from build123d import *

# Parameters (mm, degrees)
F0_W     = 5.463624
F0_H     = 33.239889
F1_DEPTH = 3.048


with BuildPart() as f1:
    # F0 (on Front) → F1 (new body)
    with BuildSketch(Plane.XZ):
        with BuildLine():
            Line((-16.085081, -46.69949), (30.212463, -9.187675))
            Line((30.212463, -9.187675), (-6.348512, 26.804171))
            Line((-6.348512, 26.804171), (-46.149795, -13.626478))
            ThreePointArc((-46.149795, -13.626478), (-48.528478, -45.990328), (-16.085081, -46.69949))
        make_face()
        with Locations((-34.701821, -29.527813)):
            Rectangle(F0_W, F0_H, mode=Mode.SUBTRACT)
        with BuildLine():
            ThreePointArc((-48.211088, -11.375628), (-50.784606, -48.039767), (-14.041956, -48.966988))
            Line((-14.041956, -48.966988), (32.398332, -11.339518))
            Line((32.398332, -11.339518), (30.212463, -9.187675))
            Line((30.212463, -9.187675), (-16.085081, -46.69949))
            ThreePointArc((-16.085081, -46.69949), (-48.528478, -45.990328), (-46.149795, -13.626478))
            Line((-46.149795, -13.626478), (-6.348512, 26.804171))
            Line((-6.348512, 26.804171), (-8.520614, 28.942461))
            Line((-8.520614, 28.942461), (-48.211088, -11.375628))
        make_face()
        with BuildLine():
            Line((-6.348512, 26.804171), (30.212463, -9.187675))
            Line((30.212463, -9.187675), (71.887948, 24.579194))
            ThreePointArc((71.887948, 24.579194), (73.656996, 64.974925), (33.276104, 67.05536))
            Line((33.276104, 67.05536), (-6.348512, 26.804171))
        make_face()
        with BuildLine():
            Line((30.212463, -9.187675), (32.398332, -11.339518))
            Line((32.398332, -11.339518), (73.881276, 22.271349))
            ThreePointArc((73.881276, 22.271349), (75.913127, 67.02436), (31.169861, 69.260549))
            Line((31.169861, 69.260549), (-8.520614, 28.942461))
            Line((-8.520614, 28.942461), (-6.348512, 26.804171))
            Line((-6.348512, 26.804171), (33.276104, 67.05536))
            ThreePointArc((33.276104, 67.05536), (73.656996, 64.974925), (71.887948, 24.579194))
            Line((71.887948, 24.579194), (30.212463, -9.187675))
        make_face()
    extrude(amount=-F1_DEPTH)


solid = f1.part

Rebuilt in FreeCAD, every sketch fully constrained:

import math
import FreeCAD as App
import Part
import Sketcher
Q = App.Units.Quantity


def add_polygon(sketch, points):
    """Adds a closed chain of lines whose ends are joined by coincident constraints."""
    first, n = sketch.GeometryCount, len(points)
    for a, b in zip(points, points[1:] + points[:1]):
        sketch.addGeometry(Part.LineSegment(App.Vector(*a, 0), App.Vector(*b, 0)), False)
    for i in range(n):
        sketch.addConstraint(Sketcher.Constraint("Coincident", first + i, 2, first + (i + 1) % n, 1))

doc = App.newDocument("Part")
body = doc.addObject("PartDesign::Body", "Body")

# Sketch on XZ plane
sketch1 = body.newObject("Sketcher::SketchObject", "Sketch")
sketch1.AttachmentSupport = (doc.getObject("XZ_Plane"), [""])
sketch1.MapMode = "FlatFace"
sketch1.addGeometry(Part.LineSegment(App.Vector(-9, 29, 0), App.Vector(-48, -11, 0)), False)  # 0
sketch1.addGeometry(Part.ArcOfCircle(Part.Circle(App.Vector(-32, -31, 0), App.Vector(0, 0, 1), 25), math.radians(130), math.radians(315)), False)  # 1
sketch1.addGeometry(Part.LineSegment(App.Vector(-14, -49, 0), App.Vector(32, -11, 0)), False)  # 2
sketch1.addGeometry(Part.LineSegment(App.Vector(32, -11, 0), App.Vector(74, 22, 0)), False)  # 3
sketch1.addGeometry(Part.ArcOfCircle(Part.Circle(App.Vector(52, 46, 0), App.Vector(0, 0, 1), 32), math.radians(-47), math.radians(132)), False)  # 4
sketch1.addGeometry(Part.LineSegment(App.Vector(31, 69, 0), App.Vector(-9, 29, 0)), False)  # 5
add_polygon(sketch1, [(-32, -46), (-37, -46), (-37, -13), (-32, -13)])  # lines 6-9
sketch1.addConstraint([
    Sketcher.Constraint("Coincident", 0, 2, 1, 1),
    Sketcher.Constraint("Coincident", 1, 2, 2, 1),
    Sketcher.Constraint("Coincident", 2, 2, 3, 1),
    Sketcher.Constraint("Coincident", 3, 2, 4, 1),
    Sketcher.Constraint("Coincident", 4, 2, 5, 1),
    Sketcher.Constraint("Coincident", 5, 2, 0, 1),
    Sketcher.Constraint("Horizontal", 6),
    Sketcher.Constraint("Vertical", 7),
    Sketcher.Constraint("Horizontal", 8),
    Sketcher.Constraint("Vertical", 9),
    Sketcher.Constraint("Parallel", 2, 3),
    Sketcher.Constraint("Parallel", 0, 5),
    Sketcher.Constraint("Vertical", 1, 3, 8, 2),
    Sketcher.Constraint("Equal", 0, 5),
    Sketcher.Constraint("Radius", 4, Q("31.750331 mm")),
    Sketcher.Constraint("Radius", 1, Q("25.425563 mm")),
    Sketcher.Constraint("DistanceY", 7, 1, 7, 2, Q("33.239889 mm")),
    Sketcher.Constraint("DistanceY", 3, 2, 4, 2, Q("46.9892 mm")),
    Sketcher.Constraint("Distance", 0, Q("56.576338 mm")),
    Sketcher.Constraint("Distance", 2, Q("59.770619 mm")),
    Sketcher.Constraint("Distance", 3, Q("53.390308 mm")),
    Sketcher.Constraint("DistanceX", 6, 2, 6, 1, Q("5.463624 mm")),
    Sketcher.Constraint("DistanceX", 1, 3, -1, 1, Q("31.970009 mm")),
    Sketcher.Constraint("DistanceY", -1, 1, 4, 3, Q("45.66843 mm")),
    Sketcher.Constraint("DistanceY", 0, 2, -1, 1, Q("11.375628 mm")),
    Sketcher.Constraint("DistanceY", -1, 1, 3, 2, Q("22.271349 mm")),
    Sketcher.Constraint("DistanceX", -1, 1, 4, 2, Q("31.169861 mm")),
    Sketcher.Constraint("DistanceY", 7, 2, -1, 1, Q("12.907868 mm")),
])
pad1 = body.newObject("PartDesign::Pad", "Pad")
pad1.Profile = sketch1
pad1.Length = Q("0.12 in")
pad1.Reversed = True

doc.recompute()
